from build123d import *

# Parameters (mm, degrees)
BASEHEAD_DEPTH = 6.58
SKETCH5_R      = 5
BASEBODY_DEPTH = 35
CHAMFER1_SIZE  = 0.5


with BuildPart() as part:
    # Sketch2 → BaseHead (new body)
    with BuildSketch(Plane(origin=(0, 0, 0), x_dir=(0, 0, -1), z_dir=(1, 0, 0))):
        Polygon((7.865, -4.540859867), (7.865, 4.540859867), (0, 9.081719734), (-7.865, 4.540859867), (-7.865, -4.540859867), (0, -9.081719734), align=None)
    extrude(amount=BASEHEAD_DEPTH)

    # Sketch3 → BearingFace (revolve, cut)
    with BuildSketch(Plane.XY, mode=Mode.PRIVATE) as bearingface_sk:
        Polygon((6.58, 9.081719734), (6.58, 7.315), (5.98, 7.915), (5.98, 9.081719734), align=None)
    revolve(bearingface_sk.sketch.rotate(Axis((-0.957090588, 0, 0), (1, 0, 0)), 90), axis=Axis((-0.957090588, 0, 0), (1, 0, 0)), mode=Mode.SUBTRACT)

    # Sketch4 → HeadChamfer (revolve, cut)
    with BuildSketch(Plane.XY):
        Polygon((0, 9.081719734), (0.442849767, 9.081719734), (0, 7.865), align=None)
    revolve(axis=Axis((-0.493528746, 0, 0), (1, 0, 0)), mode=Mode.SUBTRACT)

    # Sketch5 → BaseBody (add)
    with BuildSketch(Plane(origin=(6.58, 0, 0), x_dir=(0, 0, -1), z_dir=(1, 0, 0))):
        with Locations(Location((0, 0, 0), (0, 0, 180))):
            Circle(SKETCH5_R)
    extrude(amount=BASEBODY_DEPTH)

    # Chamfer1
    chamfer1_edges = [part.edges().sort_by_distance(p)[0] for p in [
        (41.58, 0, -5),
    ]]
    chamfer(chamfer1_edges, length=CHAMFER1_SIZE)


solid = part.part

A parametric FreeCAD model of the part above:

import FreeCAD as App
import Part
import Sketcher
Q = App.Units.Quantity


def edges_at(feature, points):
    """Names of the edges that pass closest to the given points."""
    edges = feature.Shape.Edges
    near = lambda p: min(range(len(edges)), key=lambda i: edges[i].distToShape(Part.Vertex(*p))[0])
    return sorted({f"Edge{near(p) + 1}" for p in points})

doc = App.newDocument("Part")
body = doc.addObject("PartDesign::Body", "Body")

# Sketch on YZ plane
sketch1 = body.newObject("Sketcher::SketchObject", "Sketch")
sketch1.AttachmentSupport = (doc.getObject("YZ_Plane"), [""])
sketch1.MapMode = "FlatFace"
sketch1.addGeometry([
    Part.LineSegment(App.Vector(-5, -8, 0), App.Vector(5, -8, 0)),  # 0
    Part.LineSegment(App.Vector(5, -8, 0), App.Vector(9, 0, 0)),  # 1
    Part.LineSegment(App.Vector(9, 0, 0), App.Vector(5, 8, 0)),  # 2
    Part.LineSegment(App.Vector(5, 8, 0), App.Vector(-5, 8, 0)),  # 3
    Part.LineSegment(App.Vector(-5, 8, 0), App.Vector(-9, 0, 0)),  # 4
    Part.LineSegment(App.Vector(-9, 0, 0), App.Vector(-5, -8, 0)),  # 5
], False)
sketch1.addConstraint([
    Sketcher.Constraint("Coincident", 0, 2, 1, 1),
    Sketcher.Constraint("Coincident", 1, 2, 2, 1),
    Sketcher.Constraint("Coincident", 2, 2, 3, 1),
    Sketcher.Constraint("Coincident", 3, 2, 4, 1),
    Sketcher.Constraint("Coincident", 4, 2, 5, 1),
    Sketcher.Constraint("Coincident", 5, 2, 0, 1),
    Sketcher.Constraint("Horizontal", 0),
    Sketcher.Constraint("Horizontal", 3),
    Sketcher.Constraint("Symmetric", 0, 2, 3, 2, -1, 1),
    Sketcher.Constraint("Symmetric", 1, 2, 4, 2, -1, 1),
    Sketcher.Constraint("PointOnObject", 1, 2, -1),
    Sketcher.Constraint("Parallel", 2, 5),
    Sketcher.Constraint("Vertical", 0, 2, 2, 2),
    Sketcher.Constraint("Angle", 1, Q("60 deg")),
    Sketcher.Constraint("DistanceY", 0, 2, 2, 2, Q("15.73 mm")),
    Sketcher.Constraint("DistanceX", 0, 1, 0, 2, Q("9.08172 mm")),
])
pad1 = body.newObject("PartDesign::Pad", "Pad")
pad1.Profile = sketch1
pad1.Length = 6.58

# Sketch on XY plane
sketch2 = body.newObject("Sketcher::SketchObject", "Sketch001")
sketch2.AttachmentSupport = (doc.getObject("XY_Plane"), [""])
sketch2.MapMode = "FlatFace"
sketch2.addGeometry([
    Part.LineSegment(App.Vector(6.6, 7.3, 0), App.Vector(6.6, 9.1, 0)),
    Part.LineSegment(App.Vector(6.6, 9.1, 0), App.Vector(6, 9.1, 0)),
    Part.LineSegment(App.Vector(6, 9.1, 0), App.Vector(6, 7.9, 0)),
    Part.LineSegment(App.Vector(6, 7.9, 0), App.Vector(6.6, 7.3, 0)),
], False)
sketch2.addConstraint([
    Sketcher.Constraint("Coincident", 0, 2, 1, 1),
    Sketcher.Constraint("Coincident", 1, 2, 2, 1),
    Sketcher.Constraint("Coincident", 2, 2, 3, 1),
    Sketcher.Constraint("Coincident", 3, 2, 0, 1),
    Sketcher.Constraint("Vertical", 0),
    Sketcher.Constraint("Horizontal", 1),
    Sketcher.Constraint("Vertical", 2),
    Sketcher.Constraint("Angle", 3, Q("-45 deg")),
    Sketcher.Constraint("DistanceX", 1, 2, 1, 1, Q("0.6 mm")),
    Sketcher.Constraint("DistanceX", -1, 1, 0, 2, Q("6.58 mm")),
    Sketcher.Constraint("DistanceY", -1, 1, 2, 2, Q("7.915 mm")),
    Sketcher.Constraint("DistanceY", 0, 1, 0, 2, Q("1.76672 mm")),
])
groove = body.newObject("PartDesign::Groove", "Groove")
groove.Profile = sketch2
groove.ReferenceAxis = (sketch2, ["H_Axis"])
groove.Angle = 360

# Sketch on XY plane
sketch3 = body.newObject("Sketcher::SketchObject", "Sketch002")
sketch3.AttachmentSupport = (doc.getObject("XY_Plane"), [""])
sketch3.MapMode = "FlatFace"
sketch3.addGeometry([
    Part.LineSegment(App.Vector(0.44, 9.08, 0), App.Vector(0, 9.08, 0)),
    Part.LineSegment(App.Vector(0, 9.08, 0), App.Vector(0, 7.87, 0)),
    Part.LineSegment(App.Vector(0, 7.87, 0), App.Vector(0.44, 9.08, 0)),
], False)
sketch3.addConstraint([
    Sketcher.Constraint("Coincident", 0, 2, 1, 1),
    Sketcher.Constraint("Coincident", 1, 2, 2, 1),
    Sketcher.Constraint("Coincident", 2, 2, 0, 1),
    Sketcher.Constraint("Horizontal", 0),
    Sketcher.Constraint("Vertical", 1),
    Sketcher.Constraint("PointOnObject", 0, 2, -2),
    Sketcher.Constraint("Angle", 2, Q("70 deg")),
    Sketcher.Constraint("DistanceY", -1, 1, 1, 2, Q("7.865 mm")),
    Sketcher.Constraint("DistanceX", 0, 2, 0, 1, Q("0.44285 mm")),
])
groove2 = body.newObject("PartDesign::Groove", "Groove001")
groove2.Profile = sketch3
groove2.ReferenceAxis = (sketch3, ["H_Axis"])
groove2.Angle = 360

# Sketch on YZ plane
sketch4 = body.newObject("Sketcher::SketchObject", "Sketch003")
sketch4.AttachmentSupport = (doc.getObject("YZ_Plane"), [""])
sketch4.MapMode = "FlatFace"
sketch4.AttachmentOffset = App.Placement(App.Vector(0, 0, 6.58), App.Rotation())
sketch4.addGeometry(Part.Circle(App.Vector(0, 0, 0), App.Vector(0, 0, 1), 5), False)
sketch4.addConstraint([
    Sketcher.Constraint("Coincident", 0, 3, -1, 1),
    Sketcher.Constraint("Diameter", 0, Q("10 mm")),
])
pad2 = body.newObject("PartDesign::Pad", "Pad001")
pad2.Profile = sketch4
pad2.Length = 35
doc.recompute()

chamfer = body.newObject("PartDesign::Chamfer", "Chamfer")
chamfer.Base = (pad2, edges_at(pad2, [(41.58, 0, -5)]))
chamfer.Size = 0.5

doc.recompute()
